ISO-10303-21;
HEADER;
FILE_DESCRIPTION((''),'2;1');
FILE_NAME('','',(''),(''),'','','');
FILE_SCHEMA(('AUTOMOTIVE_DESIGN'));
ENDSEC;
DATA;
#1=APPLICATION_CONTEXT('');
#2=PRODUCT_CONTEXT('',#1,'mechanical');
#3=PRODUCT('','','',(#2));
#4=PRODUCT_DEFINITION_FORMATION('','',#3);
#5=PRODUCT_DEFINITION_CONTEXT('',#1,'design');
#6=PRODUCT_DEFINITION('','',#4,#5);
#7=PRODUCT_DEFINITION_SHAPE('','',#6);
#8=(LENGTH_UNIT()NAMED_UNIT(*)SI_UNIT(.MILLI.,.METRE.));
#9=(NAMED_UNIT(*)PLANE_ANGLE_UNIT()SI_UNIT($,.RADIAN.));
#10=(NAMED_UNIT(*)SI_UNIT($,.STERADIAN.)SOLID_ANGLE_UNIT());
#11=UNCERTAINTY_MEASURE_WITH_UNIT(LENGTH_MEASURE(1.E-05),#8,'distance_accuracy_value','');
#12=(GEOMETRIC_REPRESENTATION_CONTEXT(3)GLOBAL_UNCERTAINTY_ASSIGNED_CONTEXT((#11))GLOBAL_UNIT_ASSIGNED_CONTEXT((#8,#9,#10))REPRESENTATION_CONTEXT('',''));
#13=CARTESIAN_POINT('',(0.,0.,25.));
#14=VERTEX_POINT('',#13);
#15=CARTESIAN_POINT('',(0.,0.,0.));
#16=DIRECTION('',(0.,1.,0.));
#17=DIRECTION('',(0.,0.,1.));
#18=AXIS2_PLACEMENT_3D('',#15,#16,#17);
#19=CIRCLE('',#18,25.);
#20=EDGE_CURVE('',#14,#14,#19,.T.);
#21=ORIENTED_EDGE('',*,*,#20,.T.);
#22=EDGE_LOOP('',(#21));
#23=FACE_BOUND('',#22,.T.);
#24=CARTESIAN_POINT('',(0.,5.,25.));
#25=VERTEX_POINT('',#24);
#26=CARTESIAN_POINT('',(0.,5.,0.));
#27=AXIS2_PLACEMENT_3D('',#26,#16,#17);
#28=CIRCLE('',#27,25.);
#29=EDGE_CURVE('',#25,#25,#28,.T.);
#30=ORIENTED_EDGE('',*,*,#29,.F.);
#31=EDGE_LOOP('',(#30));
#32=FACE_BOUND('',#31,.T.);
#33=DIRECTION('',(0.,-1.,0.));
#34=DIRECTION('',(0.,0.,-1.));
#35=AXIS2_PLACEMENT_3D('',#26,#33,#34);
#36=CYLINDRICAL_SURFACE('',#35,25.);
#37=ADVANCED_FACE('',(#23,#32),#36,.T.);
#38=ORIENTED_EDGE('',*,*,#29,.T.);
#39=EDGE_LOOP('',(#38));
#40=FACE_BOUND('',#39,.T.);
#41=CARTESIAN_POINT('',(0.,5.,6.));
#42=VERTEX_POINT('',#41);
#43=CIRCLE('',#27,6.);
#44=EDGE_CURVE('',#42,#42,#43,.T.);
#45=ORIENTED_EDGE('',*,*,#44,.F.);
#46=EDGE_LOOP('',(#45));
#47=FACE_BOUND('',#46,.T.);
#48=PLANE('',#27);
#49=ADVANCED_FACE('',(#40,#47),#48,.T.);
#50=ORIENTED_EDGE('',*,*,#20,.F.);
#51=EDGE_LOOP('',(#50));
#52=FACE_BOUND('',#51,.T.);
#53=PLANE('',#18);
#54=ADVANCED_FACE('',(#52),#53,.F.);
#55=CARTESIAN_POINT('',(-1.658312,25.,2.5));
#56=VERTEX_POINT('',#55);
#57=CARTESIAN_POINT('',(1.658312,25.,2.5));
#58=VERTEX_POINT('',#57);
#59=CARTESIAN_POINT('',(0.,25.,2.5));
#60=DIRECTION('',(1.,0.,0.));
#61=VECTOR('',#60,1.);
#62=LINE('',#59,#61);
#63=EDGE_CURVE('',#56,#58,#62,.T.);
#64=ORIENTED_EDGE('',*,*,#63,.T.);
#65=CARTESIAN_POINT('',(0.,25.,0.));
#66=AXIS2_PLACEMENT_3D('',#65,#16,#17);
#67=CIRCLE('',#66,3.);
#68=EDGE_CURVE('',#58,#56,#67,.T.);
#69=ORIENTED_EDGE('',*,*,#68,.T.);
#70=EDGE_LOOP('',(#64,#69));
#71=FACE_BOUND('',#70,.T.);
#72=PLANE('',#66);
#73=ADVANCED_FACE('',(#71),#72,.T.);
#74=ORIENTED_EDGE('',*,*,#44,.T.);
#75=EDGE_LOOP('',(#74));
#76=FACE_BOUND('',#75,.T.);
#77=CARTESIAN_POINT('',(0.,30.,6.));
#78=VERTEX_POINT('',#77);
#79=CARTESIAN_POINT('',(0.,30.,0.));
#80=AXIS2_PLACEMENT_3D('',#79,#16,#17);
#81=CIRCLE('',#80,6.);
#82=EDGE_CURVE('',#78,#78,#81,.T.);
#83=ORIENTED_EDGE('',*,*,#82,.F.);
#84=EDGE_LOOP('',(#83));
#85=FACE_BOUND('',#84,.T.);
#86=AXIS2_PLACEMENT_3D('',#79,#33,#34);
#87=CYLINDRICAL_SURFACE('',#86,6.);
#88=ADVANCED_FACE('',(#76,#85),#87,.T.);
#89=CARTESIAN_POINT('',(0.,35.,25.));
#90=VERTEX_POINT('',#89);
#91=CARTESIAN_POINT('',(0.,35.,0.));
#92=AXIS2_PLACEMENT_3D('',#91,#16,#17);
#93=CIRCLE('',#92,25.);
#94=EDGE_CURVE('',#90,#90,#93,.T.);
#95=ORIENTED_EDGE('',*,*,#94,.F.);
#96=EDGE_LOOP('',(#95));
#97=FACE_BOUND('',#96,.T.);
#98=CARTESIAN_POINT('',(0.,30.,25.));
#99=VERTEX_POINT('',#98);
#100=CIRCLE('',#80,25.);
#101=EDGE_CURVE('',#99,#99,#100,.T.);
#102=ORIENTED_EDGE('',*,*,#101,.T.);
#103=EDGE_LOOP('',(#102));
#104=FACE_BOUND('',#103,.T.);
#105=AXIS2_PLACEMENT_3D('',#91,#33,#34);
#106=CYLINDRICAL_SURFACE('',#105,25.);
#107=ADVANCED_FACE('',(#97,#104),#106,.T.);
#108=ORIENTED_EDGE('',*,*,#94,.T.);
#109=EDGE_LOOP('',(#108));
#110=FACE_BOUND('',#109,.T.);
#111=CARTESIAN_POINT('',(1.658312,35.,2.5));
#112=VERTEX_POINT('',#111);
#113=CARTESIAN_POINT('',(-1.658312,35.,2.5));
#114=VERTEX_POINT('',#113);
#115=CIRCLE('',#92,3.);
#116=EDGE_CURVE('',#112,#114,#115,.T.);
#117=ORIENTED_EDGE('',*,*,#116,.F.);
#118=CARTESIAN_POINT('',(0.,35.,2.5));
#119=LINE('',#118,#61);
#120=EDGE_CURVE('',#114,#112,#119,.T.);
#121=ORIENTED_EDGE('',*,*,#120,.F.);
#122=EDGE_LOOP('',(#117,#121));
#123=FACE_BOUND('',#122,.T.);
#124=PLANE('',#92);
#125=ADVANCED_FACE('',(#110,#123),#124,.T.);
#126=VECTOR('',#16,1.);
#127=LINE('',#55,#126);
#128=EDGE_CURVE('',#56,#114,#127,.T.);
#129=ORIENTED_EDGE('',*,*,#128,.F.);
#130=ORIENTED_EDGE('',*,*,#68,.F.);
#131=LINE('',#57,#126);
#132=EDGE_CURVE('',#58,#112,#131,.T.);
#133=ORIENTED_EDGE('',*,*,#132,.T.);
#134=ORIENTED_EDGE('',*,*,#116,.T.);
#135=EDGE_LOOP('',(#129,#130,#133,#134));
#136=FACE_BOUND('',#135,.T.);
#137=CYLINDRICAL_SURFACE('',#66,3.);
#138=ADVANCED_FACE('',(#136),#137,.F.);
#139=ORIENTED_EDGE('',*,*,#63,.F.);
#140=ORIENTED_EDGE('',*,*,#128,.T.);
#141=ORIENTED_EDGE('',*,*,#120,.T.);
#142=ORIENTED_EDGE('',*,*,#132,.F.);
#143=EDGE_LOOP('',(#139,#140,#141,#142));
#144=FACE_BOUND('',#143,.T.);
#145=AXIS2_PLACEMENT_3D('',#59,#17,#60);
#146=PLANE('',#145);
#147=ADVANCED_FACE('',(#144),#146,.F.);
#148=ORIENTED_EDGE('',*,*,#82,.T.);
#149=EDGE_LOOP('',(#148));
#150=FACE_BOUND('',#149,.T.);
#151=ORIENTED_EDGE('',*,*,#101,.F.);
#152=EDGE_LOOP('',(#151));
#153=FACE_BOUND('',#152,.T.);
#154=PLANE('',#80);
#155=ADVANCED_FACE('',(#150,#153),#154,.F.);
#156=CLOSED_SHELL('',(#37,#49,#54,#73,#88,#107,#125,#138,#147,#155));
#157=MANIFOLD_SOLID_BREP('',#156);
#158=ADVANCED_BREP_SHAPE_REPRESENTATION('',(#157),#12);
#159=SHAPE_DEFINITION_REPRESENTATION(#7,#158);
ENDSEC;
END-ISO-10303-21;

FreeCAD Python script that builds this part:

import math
import FreeCAD as App
import Part
import Sketcher
from FreeCAD import Vector

doc = App.newDocument("Part")
body = doc.addObject("PartDesign::Body", "Body")

sketch1 = body.newObject("Sketcher::SketchObject", "Sketch")
sketch1.AttachmentSupport = (doc.getObject("XZ_Plane"), [""])
sketch1.MapMode = "FlatFace"
sketch1.addGeometry(Part.Circle(Vector(0, 0, 0), Vector(0, 0, 1), 25), False)
sketch1.addConstraint(Sketcher.Constraint("Coincident", 0, 3, -1, 1))
sketch1.addConstraint(Sketcher.Constraint("Diameter", 0, 50.0))
pad1 = body.newObject("PartDesign::Pad", "Pad")
pad1.Profile = sketch1
pad1.Length = 5
pad1.Reversed = True

sketch2 = body.newObject("Sketcher::SketchObject", "Sketch001")
sketch2.AttachmentSupport = (doc.getObject("XZ_Plane"), [""])
sketch2.MapMode = "FlatFace"
sketch2.AttachmentOffset = App.Placement(Vector(0, 0, -5), App.Rotation())
sketch2.addGeometry(Part.Circle(Vector(0, 0, 0), Vector(0, 0, 1), 6), False)
sketch2.addConstraint(Sketcher.Constraint("Coincident", 0, 3, -1, 1))
sketch2.addConstraint(Sketcher.Constraint("Diameter", 0, 12.0))
pad2 = body.newObject("PartDesign::Pad", "Pad001")
pad2.Profile = sketch2
pad2.Length = 25
pad2.Reversed = True

sketch3 = body.newObject("Sketcher::SketchObject", "Sketch002")
sketch3.AttachmentSupport = (doc.getObject("XZ_Plane"), [""])
sketch3.MapMode = "FlatFace"
sketch3.AttachmentOffset = App.Placement(Vector(0, 0, -30), App.Rotation())
sketch3.addGeometry(Part.Circle(Vector(0, 0, 0), Vector(0, 0, 1), 25), False)
sketch3.addConstraint(Sketcher.Constraint("Coincident", 0, 3, -1, 1))
sketch3.addConstraint(Sketcher.Constraint("Diameter", 0, 50.0))
pad3 = body.newObject("PartDesign::Pad", "Pad002")
pad3.Profile = sketch3
pad3.Length = 5
pad3.Reversed = True

sketch4 = body.newObject("Sketcher::SketchObject", "Sketch003")
sketch4.AttachmentSupport = (doc.getObject("XZ_Plane"), [""])
sketch4.MapMode = "FlatFace"
sketch4.AttachmentOffset = App.Placement(Vector(0, 0, -35), App.Rotation())
sketch4.addGeometry(Part.ArcOfCircle(Part.Circle(Vector(0, 0, 0), Vector(0, 0, 1), 3), math.radians(124), math.radians(416)), False)
sketch4.addGeometry(Part.LineSegment(Vector(-1.7, 2.5, 0), Vector(1.7, 2.5, 0)), False)
sketch4.addConstraint(Sketcher.Constraint("Coincident", 0, 1, 1, 1))
sketch4.addConstraint(Sketcher.Constraint("Coincident", 1, 2, 0, 2))
sketch4.addConstraint(Sketcher.Constraint("Horizontal", 1))
sketch4.addConstraint(Sketcher.Constraint("Coincident", 0, 3, -1, 1))
sketch4.addConstraint(Sketcher.Constraint("Radius", 0, 3.0))
sketch4.addConstraint(Sketcher.Constraint("DistanceY", -1, 1, 0, 1, 2.5))
pocket1 = body.newObject("PartDesign::Pocket", "Pocket")
pocket1.Profile = sketch4
pocket1.Length = 10
pocket1.Reversed = True

doc.recompute()
